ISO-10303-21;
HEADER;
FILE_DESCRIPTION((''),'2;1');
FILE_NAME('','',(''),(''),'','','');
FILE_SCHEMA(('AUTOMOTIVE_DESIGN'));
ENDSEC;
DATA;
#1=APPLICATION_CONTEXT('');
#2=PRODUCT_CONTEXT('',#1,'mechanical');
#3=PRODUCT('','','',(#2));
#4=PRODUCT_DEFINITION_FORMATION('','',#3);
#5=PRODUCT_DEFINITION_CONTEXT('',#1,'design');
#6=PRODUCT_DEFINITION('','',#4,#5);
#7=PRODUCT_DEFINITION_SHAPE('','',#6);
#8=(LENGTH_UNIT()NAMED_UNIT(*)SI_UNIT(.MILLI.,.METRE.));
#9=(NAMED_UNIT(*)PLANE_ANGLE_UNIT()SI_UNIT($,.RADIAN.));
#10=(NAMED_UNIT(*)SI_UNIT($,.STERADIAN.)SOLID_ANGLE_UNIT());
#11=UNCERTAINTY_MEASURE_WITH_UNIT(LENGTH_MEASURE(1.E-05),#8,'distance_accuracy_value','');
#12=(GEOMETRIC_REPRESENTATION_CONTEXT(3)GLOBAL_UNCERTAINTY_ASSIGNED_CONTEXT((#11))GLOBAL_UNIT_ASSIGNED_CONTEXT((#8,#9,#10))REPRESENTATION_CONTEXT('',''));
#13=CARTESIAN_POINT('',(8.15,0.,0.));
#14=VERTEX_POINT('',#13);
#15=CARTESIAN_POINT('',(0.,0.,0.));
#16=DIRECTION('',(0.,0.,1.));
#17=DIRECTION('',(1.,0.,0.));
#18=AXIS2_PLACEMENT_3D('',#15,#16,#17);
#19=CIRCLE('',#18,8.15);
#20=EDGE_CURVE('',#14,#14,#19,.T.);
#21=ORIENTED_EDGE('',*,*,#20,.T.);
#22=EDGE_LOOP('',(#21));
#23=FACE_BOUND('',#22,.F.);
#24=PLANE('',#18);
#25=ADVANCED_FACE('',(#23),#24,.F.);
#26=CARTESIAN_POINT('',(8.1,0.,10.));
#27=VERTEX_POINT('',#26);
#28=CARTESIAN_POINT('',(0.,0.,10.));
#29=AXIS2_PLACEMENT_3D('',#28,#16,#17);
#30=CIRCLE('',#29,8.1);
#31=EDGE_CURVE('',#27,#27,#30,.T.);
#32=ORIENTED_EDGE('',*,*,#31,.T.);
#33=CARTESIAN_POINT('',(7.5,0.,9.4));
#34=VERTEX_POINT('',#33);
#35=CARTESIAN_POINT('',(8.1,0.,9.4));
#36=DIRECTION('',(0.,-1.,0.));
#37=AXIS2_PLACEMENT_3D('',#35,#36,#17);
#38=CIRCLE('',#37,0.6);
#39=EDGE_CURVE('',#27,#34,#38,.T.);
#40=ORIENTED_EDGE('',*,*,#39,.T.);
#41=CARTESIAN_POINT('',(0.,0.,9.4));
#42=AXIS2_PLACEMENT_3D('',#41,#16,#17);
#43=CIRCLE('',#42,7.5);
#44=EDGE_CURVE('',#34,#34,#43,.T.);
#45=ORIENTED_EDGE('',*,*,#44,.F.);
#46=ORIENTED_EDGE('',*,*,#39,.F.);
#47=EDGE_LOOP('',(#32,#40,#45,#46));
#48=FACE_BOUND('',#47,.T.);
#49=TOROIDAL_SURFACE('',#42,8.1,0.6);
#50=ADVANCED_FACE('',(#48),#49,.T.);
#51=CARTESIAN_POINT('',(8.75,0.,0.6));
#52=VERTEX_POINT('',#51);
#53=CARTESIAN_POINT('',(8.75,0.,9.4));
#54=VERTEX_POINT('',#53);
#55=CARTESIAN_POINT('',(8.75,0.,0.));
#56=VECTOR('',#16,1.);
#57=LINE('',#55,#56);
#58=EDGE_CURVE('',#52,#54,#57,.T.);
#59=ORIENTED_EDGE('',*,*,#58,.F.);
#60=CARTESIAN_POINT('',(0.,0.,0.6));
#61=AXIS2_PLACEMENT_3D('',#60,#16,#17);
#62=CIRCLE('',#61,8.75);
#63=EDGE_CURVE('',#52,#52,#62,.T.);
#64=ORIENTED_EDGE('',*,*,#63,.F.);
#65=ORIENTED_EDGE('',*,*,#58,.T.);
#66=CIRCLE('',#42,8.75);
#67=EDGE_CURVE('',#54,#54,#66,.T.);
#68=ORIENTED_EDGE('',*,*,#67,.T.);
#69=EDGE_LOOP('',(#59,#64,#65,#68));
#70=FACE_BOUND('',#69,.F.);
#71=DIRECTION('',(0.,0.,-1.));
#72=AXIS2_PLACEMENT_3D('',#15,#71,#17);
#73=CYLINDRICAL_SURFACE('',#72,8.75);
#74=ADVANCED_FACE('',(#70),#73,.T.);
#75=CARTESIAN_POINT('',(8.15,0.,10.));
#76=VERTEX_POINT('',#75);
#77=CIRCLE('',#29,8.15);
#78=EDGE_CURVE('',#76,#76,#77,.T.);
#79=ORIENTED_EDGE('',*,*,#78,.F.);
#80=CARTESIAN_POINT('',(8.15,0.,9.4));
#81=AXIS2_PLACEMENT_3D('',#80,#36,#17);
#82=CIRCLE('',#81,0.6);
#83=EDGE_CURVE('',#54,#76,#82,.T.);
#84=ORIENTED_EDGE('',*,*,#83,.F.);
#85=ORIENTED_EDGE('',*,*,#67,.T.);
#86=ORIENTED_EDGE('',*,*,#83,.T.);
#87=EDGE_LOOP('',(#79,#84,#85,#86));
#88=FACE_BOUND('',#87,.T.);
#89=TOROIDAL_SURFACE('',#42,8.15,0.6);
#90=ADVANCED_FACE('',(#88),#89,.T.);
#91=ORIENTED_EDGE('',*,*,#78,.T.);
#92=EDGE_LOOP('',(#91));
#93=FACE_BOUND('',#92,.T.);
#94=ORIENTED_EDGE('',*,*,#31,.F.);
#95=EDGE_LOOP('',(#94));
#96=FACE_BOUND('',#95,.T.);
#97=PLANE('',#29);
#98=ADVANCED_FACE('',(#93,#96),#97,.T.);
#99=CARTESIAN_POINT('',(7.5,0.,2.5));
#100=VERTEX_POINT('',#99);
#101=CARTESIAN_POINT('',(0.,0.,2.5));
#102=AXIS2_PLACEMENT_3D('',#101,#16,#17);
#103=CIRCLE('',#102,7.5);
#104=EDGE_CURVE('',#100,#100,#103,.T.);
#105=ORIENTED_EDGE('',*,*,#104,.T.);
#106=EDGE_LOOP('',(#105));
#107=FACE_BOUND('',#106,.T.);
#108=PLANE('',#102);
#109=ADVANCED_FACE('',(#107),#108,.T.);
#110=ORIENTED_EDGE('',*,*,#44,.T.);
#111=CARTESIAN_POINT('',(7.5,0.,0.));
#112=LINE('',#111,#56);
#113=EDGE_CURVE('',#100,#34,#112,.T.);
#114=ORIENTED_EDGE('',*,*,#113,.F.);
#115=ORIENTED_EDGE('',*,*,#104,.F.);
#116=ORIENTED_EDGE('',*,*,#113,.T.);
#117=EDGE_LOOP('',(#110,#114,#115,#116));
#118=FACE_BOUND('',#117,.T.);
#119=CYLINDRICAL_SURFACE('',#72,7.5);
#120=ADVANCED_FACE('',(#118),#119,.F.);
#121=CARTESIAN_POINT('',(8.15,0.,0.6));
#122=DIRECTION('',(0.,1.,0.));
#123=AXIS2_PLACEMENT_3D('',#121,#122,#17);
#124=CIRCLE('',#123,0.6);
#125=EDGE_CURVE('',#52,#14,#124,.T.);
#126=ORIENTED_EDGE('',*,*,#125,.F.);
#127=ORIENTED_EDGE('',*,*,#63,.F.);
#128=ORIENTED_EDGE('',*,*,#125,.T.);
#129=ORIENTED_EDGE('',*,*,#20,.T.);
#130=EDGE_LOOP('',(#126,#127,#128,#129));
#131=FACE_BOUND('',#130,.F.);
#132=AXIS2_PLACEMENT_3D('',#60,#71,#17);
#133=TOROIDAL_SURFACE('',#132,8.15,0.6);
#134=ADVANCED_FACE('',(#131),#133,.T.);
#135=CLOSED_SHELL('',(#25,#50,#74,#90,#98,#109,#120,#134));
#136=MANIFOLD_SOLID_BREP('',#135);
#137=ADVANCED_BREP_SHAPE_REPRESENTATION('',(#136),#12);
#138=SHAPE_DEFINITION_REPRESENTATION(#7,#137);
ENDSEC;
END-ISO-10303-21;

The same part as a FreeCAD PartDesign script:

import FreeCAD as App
import Part
import Sketcher
from FreeCAD import Vector
Q = App.Units.Quantity


def edges_at(feature, points):
    """Names of the edges that pass closest to the given points."""
    edges = feature.Shape.Edges
    near = lambda p: min(range(len(edges)), key=lambda i: edges[i].distToShape(Part.Vertex(*p))[0])
    return sorted({f"Edge{near(p) + 1}" for p in points})

doc = App.newDocument("Part")
body = doc.addObject("PartDesign::Body", "Body")

sketch1 = body.newObject("Sketcher::SketchObject", "Sketch")
sketch1.AttachmentSupport = (doc.getObject("XY_Plane"), [""])
sketch1.MapMode = "FlatFace"
sketch1.addGeometry(Part.Circle(Vector(0, 0, 0), Vector(0, 0, 1), 7.5), False)
sketch1.addConstraint([
    Sketcher.Constraint("Coincident", 0, 3, -1, 1),
    Sketcher.Constraint("Diameter", 0, Q("15 mm")),
])
pad1 = body.newObject("PartDesign::Pad", "Pad")
pad1.Profile = sketch1
pad1.Length = 2.5

sketch2 = body.newObject("Sketcher::SketchObject", "Sketch001")
sketch2.AttachmentSupport = (doc.getObject("XY_Plane"), [""])
sketch2.MapMode = "FlatFace"
sketch2.addGeometry([
    Part.Circle(Vector(0, 0, 0), Vector(0, 0, 1), 8.75),
    Part.Circle(Vector(0, 0, 0), Vector(0, 0, 1), 7.5),
], False)
sketch2.addConstraint([
    Sketcher.Constraint("Coincident", 0, 3, -1, 1),
    Sketcher.Constraint("Coincident", 1, 3, -1, 1),
    Sketcher.Constraint("Diameter", 1, Q("15 mm")),
    Sketcher.Constraint("Diameter", 0, Q("17.5 mm")),
])
pad2 = body.newObject("PartDesign::Pad", "Pad001")
pad2.Profile = sketch2
pad2.Length = 10
doc.recompute()

fillet = body.newObject("PartDesign::Fillet", "Fillet")
fillet.Base = (pad2, edges_at(pad2, [(-7.5, 0, 10), (-8.75, 0, 10), (-8.75, 0, 0)]))
fillet.Radius = 0.6

doc.recompute()
